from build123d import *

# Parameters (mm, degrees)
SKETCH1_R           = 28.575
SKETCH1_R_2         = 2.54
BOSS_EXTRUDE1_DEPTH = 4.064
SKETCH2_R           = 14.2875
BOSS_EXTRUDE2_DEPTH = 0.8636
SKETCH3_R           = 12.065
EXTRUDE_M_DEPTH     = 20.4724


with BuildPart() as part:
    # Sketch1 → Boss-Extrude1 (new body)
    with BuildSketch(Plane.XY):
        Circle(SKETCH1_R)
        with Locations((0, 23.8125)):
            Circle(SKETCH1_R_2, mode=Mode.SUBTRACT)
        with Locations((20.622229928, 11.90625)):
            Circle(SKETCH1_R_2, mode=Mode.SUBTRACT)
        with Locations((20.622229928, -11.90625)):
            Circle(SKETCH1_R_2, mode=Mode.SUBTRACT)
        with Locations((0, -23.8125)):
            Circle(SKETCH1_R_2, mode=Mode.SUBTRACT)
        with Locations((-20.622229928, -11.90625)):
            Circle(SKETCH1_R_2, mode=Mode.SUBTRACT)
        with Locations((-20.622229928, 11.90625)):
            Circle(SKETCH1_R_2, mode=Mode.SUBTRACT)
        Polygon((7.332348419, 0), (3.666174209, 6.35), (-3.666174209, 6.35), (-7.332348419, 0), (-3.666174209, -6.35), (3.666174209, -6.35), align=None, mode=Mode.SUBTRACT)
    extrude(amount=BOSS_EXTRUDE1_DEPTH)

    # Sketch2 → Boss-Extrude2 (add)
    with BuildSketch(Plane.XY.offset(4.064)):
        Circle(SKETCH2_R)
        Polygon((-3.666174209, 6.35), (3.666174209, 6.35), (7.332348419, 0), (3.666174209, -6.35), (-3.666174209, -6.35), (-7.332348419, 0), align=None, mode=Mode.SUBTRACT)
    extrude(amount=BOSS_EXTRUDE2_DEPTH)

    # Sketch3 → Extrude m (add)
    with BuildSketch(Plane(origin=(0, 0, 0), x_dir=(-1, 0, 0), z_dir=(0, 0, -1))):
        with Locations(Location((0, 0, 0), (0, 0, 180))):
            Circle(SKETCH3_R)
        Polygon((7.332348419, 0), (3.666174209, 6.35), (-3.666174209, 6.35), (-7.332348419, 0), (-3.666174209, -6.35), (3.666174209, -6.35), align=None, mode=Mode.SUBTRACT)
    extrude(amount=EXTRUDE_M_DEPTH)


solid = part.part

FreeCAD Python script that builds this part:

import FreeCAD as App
import Part
import Sketcher

V = App.Vector
Q = App.Units.Quantity


def add_polygon(sketch, points):
    """Adds a closed chain of lines whose ends are joined by coincident constraints."""
    first, n = sketch.GeometryCount, len(points)
    for a, b in zip(points, points[1:] + points[:1]):
        sketch.addGeometry(Part.LineSegment(App.Vector(*a, 0), App.Vector(*b, 0)), False)
    for i in range(n):
        sketch.addConstraint(Sketcher.Constraint("Coincident", first + i, 2, first + (i + 1) % n, 1))

doc = App.newDocument("Part")
body = doc.addObject("PartDesign::Body", "Body")

# Sketch on XY plane
sketch1 = body.newObject("Sketcher::SketchObject", "Sketch")
sketch1.AttachmentSupport = (doc.getObject("XY_Plane"), [""])
sketch1.MapMode = "FlatFace"
sketch1.addGeometry(Part.Circle(V(0, 0, 0), V(0, 0, 1), 28.6), False)  # 0
sketch1.addGeometry(Part.Circle(V(-20.6, -11.9, 0), V(0, 0, 1), 2.5), False)  # 1
sketch1.addGeometry(Part.Circle(V(0, -23.8, 0), V(0, 0, 1), 2.5), False)  # 2
sketch1.addGeometry(Part.Circle(V(20.6, -11.9, 0), V(0, 0, 1), 2.5), False)  # 3
sketch1.addGeometry(Part.Circle(V(-20.6, 11.9, 0), V(0, 0, 1), 2.5), False)  # 4
add_polygon(sketch1, [(3.7, 6.3), (7.3, 0), (3.7, -6.3), (-3.7, -6.3), (-7.3, 0), (-3.7, 6.3)])  # lines 5-10
sketch1.addGeometry(Part.Circle(V(20.6, 11.9, 0), V(0, 0, 1), 2.5), False)  # 11
sketch1.addGeometry(Part.Circle(V(0, 23.8, 0), V(0, 0, 1), 2.5), False)  # 12
sketch1.addConstraint([
    Sketcher.Constraint("Horizontal", 7),
    Sketcher.Constraint("Horizontal", 10),
    Sketcher.Constraint("Coincident", 0, 3, -1, 1),
    Sketcher.Constraint("Equal", 1, 2),
    Sketcher.Constraint("Equal", 2, 3),
    Sketcher.Constraint("Equal", 3, 4),
    Sketcher.Constraint("Equal", 4, 11),
    Sketcher.Constraint("Equal", 11, 12),
    Sketcher.Constraint("Symmetric", 3, 3, 4, 3, -1, 1),
    Sketcher.Constraint("Symmetric", 1, 3, 11, 3, -1, 1),
    Sketcher.Constraint("Symmetric", 2, 3, 12, 3, -1, 1),
    Sketcher.Constraint("Symmetric", 5, 2, 8, 2, -1, 1),
    Sketcher.Constraint("Symmetric", 6, 2, 9, 2, -1, 1),
    Sketcher.Constraint("Symmetric", 1, 3, 3, 3, -2),
    Sketcher.Constraint("PointOnObject", 2, 3, -2),
    Sketcher.Constraint("PointOnObject", 5, 2, -1),
    Sketcher.Constraint("Parallel", 5, 8),
    Sketcher.Constraint("Vertical", 7, 2, 9, 2),
    Sketcher.Constraint("Diameter", 1, Q("0.2 in")),
    Sketcher.Constraint("Diameter", 0, Q("2.25 in")),
    Sketcher.Constraint("Angle", 5, Q("-60 deg")),
    Sketcher.Constraint("DistanceY", 7, 2, 9, 2, Q("0.5 in")),
    Sketcher.Constraint("DistanceY", 1, 3, -1, 1, Q("0.46875 in")),
    Sketcher.Constraint("DistanceY", 2, 3, -1, 1, Q("0.9375 in")),
    Sketcher.Constraint("DistanceX", 7, 2, 7, 1, 7.332348),
    Sketcher.Constraint("DistanceX", 1, 3, -1, 1, 20.62223),
])
pad1 = body.newObject("PartDesign::Pad", "Pad")
pad1.Profile = sketch1
pad1.Length = Q("0.16 in")

# Sketch on XY plane
sketch2 = body.newObject("Sketcher::SketchObject", "Sketch001")
sketch2.AttachmentSupport = (doc.getObject("XY_Plane"), [""])
sketch2.MapMode = "FlatFace"
sketch2.AttachmentOffset = App.Placement(V(0, 0, 0.16 * 25.4), App.Rotation())
sketch2.addGeometry(Part.Circle(V(0, 0, 0), V(0, 0, 1), 14), False)  # 0
add_polygon(sketch2, [(-7, 0), (-4, 6), (4, 6), (7, 0), (4, -6), (-4, -6)])  # lines 1-6
sketch2.addConstraint([
    Sketcher.Constraint("Horizontal", 2),
    Sketcher.Constraint("Horizontal", 5),
    Sketcher.Constraint("Coincident", 0, 3, -1, 1),
    Sketcher.Constraint("Symmetric", 1, 2, 4, 2, -1, 1),
    Sketcher.Constraint("Symmetric", 3, 2, 6, 2, -1, 1),
    Sketcher.Constraint("PointOnObject", 3, 2, -1),
    Sketcher.Constraint("Parallel", 3, 6),
    Sketcher.Constraint("Vertical", 2, 2, 4, 2),
    Sketcher.Constraint("Diameter", 0, Q("1.125 in")),
    Sketcher.Constraint("Angle", 1, Q("60 deg")),
    Sketcher.Constraint("DistanceY", 4, 2, 2, 2, Q("0.5 in")),
    Sketcher.Constraint("DistanceX", 2, 1, 2, 2, 7.332348),
])
pad2 = body.newObject("PartDesign::Pad", "Pad001")
pad2.Profile = sketch2
pad2.Length = Q("0.034 in")

# Sketch on XY plane
sketch3 = body.newObject("Sketcher::SketchObject", "Sketch002")
sketch3.AttachmentSupport = (doc.getObject("XY_Plane"), [""])
sketch3.MapMode = "FlatFace"
sketch3.addGeometry(Part.Circle(V(0, 0, 0), V(0, 0, 1), 12), False)  # 0
add_polygon(sketch3, [(-4, 6), (-7, 0), (-4, -6), (4, -6), (7, 0), (4, 6)])  # lines 1-6
sketch3.addConstraint([
    Sketcher.Constraint("Horizontal", 3),
    Sketcher.Constraint("Horizontal", 6),
    Sketcher.Constraint("Coincident", 0, 3, -1, 1),
    Sketcher.Constraint("Symmetric", 1, 2, 4, 2, -1, 1),
    Sketcher.Constraint("Symmetric", 2, 2, 5, 2, -1, 1),
    Sketcher.Constraint("PointOnObject", 1, 2, -1),
    Sketcher.Constraint("Parallel", 1, 4),
    Sketcher.Constraint("Vertical", 3, 2, 5, 2),
    Sketcher.Constraint("Diameter", 0, Q("0.95 in")),
    Sketcher.Constraint("Angle", 1, Q("-120 deg")),
    Sketcher.Constraint("DistanceY", 3, 2, 5, 2, Q("0.5 in")),
    Sketcher.Constraint("DistanceX", 3, 1, 3, 2, 7.332348),
])
pad3 = body.newObject("PartDesign::Pad", "Pad002")
pad3.Profile = sketch3
pad3.Length = Q("0.806 in")
pad3.Reversed = True

doc.recompute()
